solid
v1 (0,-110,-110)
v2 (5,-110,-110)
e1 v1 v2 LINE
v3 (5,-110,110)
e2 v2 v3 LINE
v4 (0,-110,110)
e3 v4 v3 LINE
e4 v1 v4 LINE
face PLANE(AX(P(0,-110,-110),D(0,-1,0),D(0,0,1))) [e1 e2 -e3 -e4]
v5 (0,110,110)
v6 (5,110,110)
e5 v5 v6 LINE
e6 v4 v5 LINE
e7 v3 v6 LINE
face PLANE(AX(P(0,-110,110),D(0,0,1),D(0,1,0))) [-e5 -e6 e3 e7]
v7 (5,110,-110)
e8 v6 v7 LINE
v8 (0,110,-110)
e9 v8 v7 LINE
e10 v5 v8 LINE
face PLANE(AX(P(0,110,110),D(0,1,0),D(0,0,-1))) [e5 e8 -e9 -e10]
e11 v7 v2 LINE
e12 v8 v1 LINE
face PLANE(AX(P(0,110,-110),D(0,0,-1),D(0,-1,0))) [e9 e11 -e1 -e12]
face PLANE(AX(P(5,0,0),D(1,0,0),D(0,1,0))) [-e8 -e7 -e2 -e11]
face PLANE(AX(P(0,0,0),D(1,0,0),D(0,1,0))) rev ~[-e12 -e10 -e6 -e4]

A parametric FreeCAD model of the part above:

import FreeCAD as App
import Part
import Sketcher
from FreeCAD import Vector
Q = App.Units.Quantity


def add_polygon(sketch, points):
    """Adds a closed chain of lines whose ends are joined by coincident constraints."""
    first, n = sketch.GeometryCount, len(points)
    for a, b in zip(points, points[1:] + points[:1]):
        sketch.addGeometry(Part.LineSegment(App.Vector(*a, 0), App.Vector(*b, 0)), False)
    for i in range(n):
        sketch.addConstraint(Sketcher.Constraint("Coincident", first + i, 2, first + (i + 1) % n, 1))

doc = App.newDocument("Part")
body = doc.addObject("PartDesign::Body", "Body")

sketch1 = body.newObject("Sketcher::SketchObject", "Sketch")
sketch1.AttachmentSupport = (doc.getObject("YZ_Plane"), [""])
sketch1.MapMode = "FlatFace"
add_polygon(sketch1, [(110, 110), (-110, 110), (-110, -110), (110, -110)])
sketch1.addConstraint([
    Sketcher.Constraint("Horizontal", 0),
    Sketcher.Constraint("Vertical", 1),
    Sketcher.Constraint("Horizontal", 2),
    Sketcher.Constraint("Vertical", 3),
    Sketcher.Constraint("Symmetric", 0, 2, 2, 2, -1, 1),
    Sketcher.Constraint("Equal", 2, 1),
    Sketcher.Constraint("DistanceX", 0, 2, 0, 1, Q("220 mm")),
])
pad1 = body.newObject("PartDesign::Pad", "Pad")
pad1.Profile = sketch1
pad1.Length = 5

doc.recompute()
